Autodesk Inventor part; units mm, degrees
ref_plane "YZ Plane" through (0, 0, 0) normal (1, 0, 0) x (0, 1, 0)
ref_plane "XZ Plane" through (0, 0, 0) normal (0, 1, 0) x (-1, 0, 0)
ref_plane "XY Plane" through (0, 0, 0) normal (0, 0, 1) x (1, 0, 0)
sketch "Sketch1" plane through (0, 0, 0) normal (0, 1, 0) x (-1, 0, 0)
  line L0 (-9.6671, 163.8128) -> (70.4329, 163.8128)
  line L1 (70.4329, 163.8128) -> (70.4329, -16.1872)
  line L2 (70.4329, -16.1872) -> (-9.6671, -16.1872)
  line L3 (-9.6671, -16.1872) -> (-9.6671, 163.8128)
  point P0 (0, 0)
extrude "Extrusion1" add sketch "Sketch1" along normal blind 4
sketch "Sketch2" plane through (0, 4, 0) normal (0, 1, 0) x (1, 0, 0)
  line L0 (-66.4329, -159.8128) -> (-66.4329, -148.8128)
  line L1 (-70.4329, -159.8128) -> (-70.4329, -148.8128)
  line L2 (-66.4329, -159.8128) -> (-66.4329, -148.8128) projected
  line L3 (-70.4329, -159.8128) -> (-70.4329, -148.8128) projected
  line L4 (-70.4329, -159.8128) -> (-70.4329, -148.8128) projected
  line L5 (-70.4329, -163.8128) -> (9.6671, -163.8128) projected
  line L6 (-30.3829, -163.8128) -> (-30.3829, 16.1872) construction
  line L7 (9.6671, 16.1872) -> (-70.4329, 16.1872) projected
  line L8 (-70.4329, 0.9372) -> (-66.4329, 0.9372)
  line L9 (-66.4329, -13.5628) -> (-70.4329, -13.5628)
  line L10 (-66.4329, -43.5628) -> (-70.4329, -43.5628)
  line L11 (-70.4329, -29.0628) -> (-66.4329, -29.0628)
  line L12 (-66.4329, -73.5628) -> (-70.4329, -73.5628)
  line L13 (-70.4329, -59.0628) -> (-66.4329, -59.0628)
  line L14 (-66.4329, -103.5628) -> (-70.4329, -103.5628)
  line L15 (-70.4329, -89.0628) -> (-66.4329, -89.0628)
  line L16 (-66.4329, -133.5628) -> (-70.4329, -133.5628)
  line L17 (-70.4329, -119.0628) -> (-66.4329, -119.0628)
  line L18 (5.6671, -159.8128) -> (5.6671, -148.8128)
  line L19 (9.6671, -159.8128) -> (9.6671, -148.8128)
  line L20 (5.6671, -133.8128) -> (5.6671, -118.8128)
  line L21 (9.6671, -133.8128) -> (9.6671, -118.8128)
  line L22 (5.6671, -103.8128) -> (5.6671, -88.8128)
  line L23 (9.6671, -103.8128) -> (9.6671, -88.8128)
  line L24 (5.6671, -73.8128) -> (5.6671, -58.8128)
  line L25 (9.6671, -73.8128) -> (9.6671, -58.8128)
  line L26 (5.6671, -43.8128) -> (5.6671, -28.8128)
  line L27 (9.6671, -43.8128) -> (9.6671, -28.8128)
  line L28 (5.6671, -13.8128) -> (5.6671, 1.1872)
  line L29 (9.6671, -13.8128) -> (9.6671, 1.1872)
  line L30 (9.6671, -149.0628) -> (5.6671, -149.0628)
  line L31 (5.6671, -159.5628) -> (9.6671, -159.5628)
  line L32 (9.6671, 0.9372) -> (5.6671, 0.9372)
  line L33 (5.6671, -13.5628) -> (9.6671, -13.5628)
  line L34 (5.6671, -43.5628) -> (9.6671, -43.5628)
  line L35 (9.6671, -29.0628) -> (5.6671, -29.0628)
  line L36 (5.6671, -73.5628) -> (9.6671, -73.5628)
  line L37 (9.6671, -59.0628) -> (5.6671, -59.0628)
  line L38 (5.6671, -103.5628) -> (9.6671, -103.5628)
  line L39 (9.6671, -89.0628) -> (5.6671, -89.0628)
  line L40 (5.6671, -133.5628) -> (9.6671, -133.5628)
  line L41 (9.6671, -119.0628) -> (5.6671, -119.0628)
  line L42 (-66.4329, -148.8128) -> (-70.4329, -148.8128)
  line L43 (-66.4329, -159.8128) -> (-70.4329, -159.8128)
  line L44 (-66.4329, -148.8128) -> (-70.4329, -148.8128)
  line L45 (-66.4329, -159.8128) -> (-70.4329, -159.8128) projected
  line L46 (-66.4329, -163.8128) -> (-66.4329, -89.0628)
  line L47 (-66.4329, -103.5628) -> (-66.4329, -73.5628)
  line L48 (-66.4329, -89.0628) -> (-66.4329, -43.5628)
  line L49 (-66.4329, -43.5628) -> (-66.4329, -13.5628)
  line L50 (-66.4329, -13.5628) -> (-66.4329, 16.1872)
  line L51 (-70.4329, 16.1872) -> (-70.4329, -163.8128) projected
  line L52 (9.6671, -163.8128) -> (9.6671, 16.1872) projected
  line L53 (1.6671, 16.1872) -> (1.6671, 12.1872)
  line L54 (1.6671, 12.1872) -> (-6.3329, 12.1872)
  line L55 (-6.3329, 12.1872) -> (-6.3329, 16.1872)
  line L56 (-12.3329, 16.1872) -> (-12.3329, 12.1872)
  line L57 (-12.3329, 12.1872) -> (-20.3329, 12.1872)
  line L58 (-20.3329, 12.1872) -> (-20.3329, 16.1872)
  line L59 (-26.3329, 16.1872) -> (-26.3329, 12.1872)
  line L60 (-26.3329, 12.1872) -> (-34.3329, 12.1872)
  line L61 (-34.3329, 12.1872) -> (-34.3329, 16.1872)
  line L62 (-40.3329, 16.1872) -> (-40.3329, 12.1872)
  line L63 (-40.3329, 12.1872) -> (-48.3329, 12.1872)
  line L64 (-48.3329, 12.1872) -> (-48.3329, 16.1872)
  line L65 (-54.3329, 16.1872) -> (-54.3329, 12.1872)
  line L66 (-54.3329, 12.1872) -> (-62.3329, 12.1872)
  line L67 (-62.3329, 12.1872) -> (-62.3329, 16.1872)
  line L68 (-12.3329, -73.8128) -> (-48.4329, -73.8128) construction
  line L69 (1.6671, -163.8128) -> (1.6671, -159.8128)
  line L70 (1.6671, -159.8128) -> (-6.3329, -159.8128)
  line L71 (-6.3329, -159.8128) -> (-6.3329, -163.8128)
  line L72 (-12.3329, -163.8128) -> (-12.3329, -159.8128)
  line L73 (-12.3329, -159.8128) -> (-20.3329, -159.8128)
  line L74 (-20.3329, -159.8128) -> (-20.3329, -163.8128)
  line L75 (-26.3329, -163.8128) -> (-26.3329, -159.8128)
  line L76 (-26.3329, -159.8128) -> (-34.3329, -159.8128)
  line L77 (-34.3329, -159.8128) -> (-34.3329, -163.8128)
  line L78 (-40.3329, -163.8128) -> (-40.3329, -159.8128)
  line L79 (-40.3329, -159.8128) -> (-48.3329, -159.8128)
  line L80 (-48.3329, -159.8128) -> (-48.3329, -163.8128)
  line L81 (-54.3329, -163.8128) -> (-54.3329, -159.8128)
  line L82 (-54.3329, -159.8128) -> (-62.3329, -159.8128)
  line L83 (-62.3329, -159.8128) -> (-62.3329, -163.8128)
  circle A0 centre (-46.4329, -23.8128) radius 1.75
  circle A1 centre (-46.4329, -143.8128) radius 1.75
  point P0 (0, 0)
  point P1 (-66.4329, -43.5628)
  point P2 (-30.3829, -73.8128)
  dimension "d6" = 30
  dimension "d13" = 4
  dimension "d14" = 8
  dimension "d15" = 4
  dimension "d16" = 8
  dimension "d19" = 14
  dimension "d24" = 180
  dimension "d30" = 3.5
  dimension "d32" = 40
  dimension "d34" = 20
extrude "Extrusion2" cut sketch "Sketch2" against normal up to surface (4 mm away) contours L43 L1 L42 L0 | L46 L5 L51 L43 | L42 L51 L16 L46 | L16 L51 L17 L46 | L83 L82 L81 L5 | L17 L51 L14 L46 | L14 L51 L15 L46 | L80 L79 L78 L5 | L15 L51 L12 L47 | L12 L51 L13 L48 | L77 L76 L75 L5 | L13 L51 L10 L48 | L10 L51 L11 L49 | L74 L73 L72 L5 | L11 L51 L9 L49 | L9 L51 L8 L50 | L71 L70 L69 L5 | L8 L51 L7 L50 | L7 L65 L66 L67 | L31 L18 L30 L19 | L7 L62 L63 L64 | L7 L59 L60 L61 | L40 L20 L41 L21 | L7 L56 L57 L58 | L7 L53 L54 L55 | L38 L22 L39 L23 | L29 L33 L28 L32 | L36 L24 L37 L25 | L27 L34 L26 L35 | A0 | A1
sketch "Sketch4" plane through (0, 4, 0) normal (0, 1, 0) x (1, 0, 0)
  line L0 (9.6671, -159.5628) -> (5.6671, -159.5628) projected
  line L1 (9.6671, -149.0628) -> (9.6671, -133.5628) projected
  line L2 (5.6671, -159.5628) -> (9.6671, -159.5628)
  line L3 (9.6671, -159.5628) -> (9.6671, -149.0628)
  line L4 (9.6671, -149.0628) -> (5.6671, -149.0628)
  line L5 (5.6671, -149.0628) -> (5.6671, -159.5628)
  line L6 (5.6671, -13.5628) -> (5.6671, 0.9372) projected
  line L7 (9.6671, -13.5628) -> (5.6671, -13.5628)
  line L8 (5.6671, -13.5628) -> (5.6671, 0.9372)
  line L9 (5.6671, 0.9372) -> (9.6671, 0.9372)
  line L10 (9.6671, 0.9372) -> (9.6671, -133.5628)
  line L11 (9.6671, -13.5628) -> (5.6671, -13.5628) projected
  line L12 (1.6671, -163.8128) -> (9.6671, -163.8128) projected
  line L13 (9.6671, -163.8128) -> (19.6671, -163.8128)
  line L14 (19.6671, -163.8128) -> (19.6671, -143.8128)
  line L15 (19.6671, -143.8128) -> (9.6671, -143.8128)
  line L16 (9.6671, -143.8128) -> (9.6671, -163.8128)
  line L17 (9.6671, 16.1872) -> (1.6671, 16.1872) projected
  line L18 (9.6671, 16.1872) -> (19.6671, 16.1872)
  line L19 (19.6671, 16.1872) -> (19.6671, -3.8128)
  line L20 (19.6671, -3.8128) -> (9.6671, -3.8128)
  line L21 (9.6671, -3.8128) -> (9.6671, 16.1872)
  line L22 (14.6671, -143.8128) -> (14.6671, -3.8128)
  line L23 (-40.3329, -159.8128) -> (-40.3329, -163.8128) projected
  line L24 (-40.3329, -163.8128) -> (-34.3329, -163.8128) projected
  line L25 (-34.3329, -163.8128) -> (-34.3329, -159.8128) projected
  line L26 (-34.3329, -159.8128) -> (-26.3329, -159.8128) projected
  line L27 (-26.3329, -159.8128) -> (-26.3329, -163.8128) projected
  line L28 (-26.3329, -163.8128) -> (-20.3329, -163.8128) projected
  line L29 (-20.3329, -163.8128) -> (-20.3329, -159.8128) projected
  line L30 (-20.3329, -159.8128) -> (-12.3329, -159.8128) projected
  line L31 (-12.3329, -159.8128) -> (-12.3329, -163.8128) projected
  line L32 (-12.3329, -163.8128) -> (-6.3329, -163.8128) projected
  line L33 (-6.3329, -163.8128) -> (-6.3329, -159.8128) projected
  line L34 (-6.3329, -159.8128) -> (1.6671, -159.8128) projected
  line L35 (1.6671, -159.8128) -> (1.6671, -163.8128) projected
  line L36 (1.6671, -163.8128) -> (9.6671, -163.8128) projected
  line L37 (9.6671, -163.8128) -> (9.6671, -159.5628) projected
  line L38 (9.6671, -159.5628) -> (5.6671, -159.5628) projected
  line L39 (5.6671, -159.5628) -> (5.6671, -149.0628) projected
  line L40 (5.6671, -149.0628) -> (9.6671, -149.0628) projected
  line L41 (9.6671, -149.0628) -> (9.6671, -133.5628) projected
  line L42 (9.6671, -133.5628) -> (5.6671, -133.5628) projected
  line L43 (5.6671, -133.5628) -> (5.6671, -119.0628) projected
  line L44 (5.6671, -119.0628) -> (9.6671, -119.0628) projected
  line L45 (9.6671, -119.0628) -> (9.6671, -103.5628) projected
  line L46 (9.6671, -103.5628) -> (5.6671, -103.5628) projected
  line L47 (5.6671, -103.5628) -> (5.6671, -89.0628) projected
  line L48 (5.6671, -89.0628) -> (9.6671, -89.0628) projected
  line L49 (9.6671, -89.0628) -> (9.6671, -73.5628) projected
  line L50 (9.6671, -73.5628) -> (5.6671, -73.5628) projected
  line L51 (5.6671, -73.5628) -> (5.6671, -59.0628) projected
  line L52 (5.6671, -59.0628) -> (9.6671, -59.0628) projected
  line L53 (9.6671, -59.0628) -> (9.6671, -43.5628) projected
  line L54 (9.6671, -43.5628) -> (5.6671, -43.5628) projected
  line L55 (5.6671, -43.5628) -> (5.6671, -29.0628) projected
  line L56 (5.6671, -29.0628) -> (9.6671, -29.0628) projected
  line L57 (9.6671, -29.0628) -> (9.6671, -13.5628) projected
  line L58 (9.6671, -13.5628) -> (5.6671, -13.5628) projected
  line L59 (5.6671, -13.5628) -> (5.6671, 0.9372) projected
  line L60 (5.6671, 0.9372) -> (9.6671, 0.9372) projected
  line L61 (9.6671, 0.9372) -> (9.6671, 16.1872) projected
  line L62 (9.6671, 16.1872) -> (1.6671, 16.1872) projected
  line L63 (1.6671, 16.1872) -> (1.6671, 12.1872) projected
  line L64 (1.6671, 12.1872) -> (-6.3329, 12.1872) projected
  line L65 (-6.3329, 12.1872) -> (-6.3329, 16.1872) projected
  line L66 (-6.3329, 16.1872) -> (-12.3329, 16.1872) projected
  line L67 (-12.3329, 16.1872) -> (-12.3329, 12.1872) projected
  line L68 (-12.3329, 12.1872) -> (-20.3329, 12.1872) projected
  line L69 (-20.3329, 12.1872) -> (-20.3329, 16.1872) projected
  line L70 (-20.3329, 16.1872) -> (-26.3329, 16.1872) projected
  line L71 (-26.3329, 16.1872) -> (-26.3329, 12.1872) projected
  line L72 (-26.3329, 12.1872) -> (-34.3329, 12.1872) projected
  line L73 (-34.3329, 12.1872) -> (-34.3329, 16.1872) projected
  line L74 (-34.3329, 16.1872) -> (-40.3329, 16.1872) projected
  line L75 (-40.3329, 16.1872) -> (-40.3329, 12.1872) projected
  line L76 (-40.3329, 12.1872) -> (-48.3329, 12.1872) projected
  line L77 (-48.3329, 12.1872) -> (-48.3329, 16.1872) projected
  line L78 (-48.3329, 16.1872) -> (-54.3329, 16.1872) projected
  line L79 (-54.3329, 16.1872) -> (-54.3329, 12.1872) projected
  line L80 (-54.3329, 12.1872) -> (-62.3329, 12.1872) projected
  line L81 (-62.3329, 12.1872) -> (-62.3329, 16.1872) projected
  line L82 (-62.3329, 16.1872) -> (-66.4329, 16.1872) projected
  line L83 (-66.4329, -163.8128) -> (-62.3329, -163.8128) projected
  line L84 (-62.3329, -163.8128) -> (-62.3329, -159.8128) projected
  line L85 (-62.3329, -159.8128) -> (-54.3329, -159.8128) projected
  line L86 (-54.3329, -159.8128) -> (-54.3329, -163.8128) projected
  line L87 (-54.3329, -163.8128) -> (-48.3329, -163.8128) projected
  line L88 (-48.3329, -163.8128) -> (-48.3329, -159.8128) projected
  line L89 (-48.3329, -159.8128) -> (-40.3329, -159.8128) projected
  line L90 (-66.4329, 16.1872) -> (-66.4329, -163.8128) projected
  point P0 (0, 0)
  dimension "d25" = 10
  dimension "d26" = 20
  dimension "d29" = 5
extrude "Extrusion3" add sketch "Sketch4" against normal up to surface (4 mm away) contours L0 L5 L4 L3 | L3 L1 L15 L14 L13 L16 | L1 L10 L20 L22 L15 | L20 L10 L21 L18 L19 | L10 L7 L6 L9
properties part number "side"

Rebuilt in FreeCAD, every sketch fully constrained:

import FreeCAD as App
import Part
import Sketcher

V = App.Vector
Q = App.Units.Quantity


def add_polygon(sketch, points):
    """Adds a closed chain of lines whose ends are joined by coincident constraints."""
    first, n = sketch.GeometryCount, len(points)
    for a, b in zip(points, points[1:] + points[:1]):
        sketch.addGeometry(Part.LineSegment(App.Vector(*a, 0), App.Vector(*b, 0)), False)
    for i in range(n):
        sketch.addConstraint(Sketcher.Constraint("Coincident", first + i, 2, first + (i + 1) % n, 1))

doc = App.newDocument("Part")
body = doc.addObject("PartDesign::Body", "Body")

# Sketch on XZ plane
sketch1 = body.newObject("Sketcher::SketchObject", "Sketch")
sketch1.AttachmentSupport = (doc.getObject("XZ_Plane"), [""])
sketch1.MapMode = "FlatFace"
add_polygon(sketch1, [(-70, 164), (10, 164), (10, -16), (-70, -16)])  # lines 0-3
sketch1.addConstraint([
    Sketcher.Constraint("Horizontal", 0),
    Sketcher.Constraint("Vertical", 1),
    Sketcher.Constraint("Horizontal", 2),
    Sketcher.Constraint("Vertical", 3),
    Sketcher.Constraint("DistanceY", 1, 2, 1, 1, Q("180 mm")),
    Sketcher.Constraint("DistanceX", 0, 1, 0, 2, Q("80.1 mm")),
    Sketcher.Constraint("DistanceX", -1, 1, 0, 2, Q("9.667 mm")),
    Sketcher.Constraint("DistanceY", -1, 1, 0, 2, Q("163.8128 mm")),
])
pad1 = body.newObject("PartDesign::Pad", "Pad")
pad1.Profile = sketch1
pad1.Length = 4
pad1.Reversed = True

# Sketch on XZ plane
sketch2 = body.newObject("Sketcher::SketchObject", "Sketch001")
sketch2.AttachmentSupport = (doc.getObject("XZ_Plane"), [""])
sketch2.MapMode = "FlatFace"
sketch2.AttachmentOffset = App.Placement(V(0, 0, -4), App.Rotation())
add_polygon(sketch2, [(-70.4, 163.8), (-66.4, 163.8), (-66.4, -16.2), (-70.4, -16.2)])  # lines 0-3
add_polygon(sketch2, [(-62.3, 159.8), (-62.3, 163.8), (-54.3, 163.8), (-54.3, 159.8)])  # lines 4-7
add_polygon(sketch2, [(-48.3, 159.8), (-48.3, 163.8), (-40.3, 163.8), (-40.3, 159.8)])  # lines 8-11
add_polygon(sketch2, [(-34.3, 159.8), (-34.3, 163.8), (-26.3, 163.8), (-26.3, 159.8)])  # lines 12-15
add_polygon(sketch2, [(-20.3, 159.8), (-20.3, 163.8), (-12.3, 163.8), (-12.3, 159.8)])  # lines 16-19
add_polygon(sketch2, [(-6.3, 159.8), (-6.3, 163.8), (1.7, 163.8), (1.7, 159.8)])  # lines 20-23
add_polygon(sketch2, [(-54.3, -16.2), (-62.3, -16.2), (-62.3, -12.2), (-54.3, -12.2)])  # lines 24-27
add_polygon(sketch2, [(5.7, 159.6), (9.7, 159.6), (9.7, 149.1), (5.7, 149.1)])  # lines 28-31
add_polygon(sketch2, [(-40.3, -16.2), (-48.3, -16.2), (-48.3, -12.2), (-40.3, -12.2)])  # lines 32-35
add_polygon(sketch2, [(-26.3, -16.2), (-34.3, -16.2), (-34.3, -12.2), (-26.3, -12.2)])  # lines 36-39
add_polygon(sketch2, [(5.7, 133.6), (9.7, 133.6), (9.7, 119.1), (5.7, 119.1)])  # lines 40-43
add_polygon(sketch2, [(-12.3, -16.2), (-20.3, -16.2), (-20.3, -12.2), (-12.3, -12.2)])  # lines 44-47
add_polygon(sketch2, [(1.7, -16.2), (-6.3, -16.2), (-6.3, -12.2), (1.7, -12.2)])  # lines 48-51
add_polygon(sketch2, [(5.7, 103.6), (9.7, 103.6), (9.7, 89.1), (5.7, 89.1)])  # lines 52-55
add_polygon(sketch2, [(9.7, 13.6), (9.7, -0.9), (5.7, -0.9), (5.7, 13.6)])  # lines 56-59
add_polygon(sketch2, [(5.7, 73.6), (9.7, 73.6), (9.7, 59.1), (5.7, 59.1)])  # lines 60-63
add_polygon(sketch2, [(9.7, 43.6), (9.7, 29.1), (5.7, 29.1), (5.7, 43.6)])  # lines 64-67
sketch2.addGeometry(Part.Circle(V(-46.4, 23.8, 0), V(0, 0, 1), 1.8), False)  # 68
sketch2.addGeometry(Part.Circle(V(-46.4, 143.8, 0), V(0, 0, 1), 1.8), False)  # 69
sketch2.addConstraint([
    Sketcher.Constraint("Horizontal", 0),
    Sketcher.Constraint("Vertical", 1),
    Sketcher.Constraint("Horizontal", 2),
    Sketcher.Constraint("Vertical", 3),
    Sketcher.Constraint("Vertical", 4),
    Sketcher.Constraint("Horizontal", 5),
    Sketcher.Constraint("Vertical", 6),
    Sketcher.Constraint("Horizontal", 7),
    Sketcher.Constraint("Vertical", 8),
    Sketcher.Constraint("Horizontal", 9),
    Sketcher.Constraint("Vertical", 10),
    Sketcher.Constraint("Horizontal", 11),
    Sketcher.Constraint("Vertical", 12),
    Sketcher.Constraint("Horizontal", 13),
    Sketcher.Constraint("Vertical", 14),
    Sketcher.Constraint("Horizontal", 15),
    Sketcher.Constraint("Vertical", 16),
    Sketcher.Constraint("Horizontal", 17),
    Sketcher.Constraint("Vertical", 18),
    Sketcher.Constraint("Horizontal", 19),
    Sketcher.Constraint("Vertical", 20),
    Sketcher.Constraint("Horizontal", 21),
    Sketcher.Constraint("Vertical", 22),
    Sketcher.Constraint("Horizontal", 23),
    Sketcher.Constraint("Horizontal", 24),
    Sketcher.Constraint("Vertical", 25),
    Sketcher.Constraint("Horizontal", 26),
    Sketcher.Constraint("Vertical", 27),
    Sketcher.Constraint("Horizontal", 28),
    Sketcher.Constraint("Vertical", 29),
    Sketcher.Constraint("Horizontal", 30),
    Sketcher.Constraint("Vertical", 31),
    Sketcher.Constraint("Horizontal", 32),
    Sketcher.Constraint("Vertical", 33),
    Sketcher.Constraint("Horizontal", 34),
    Sketcher.Constraint("Vertical", 35),
    Sketcher.Constraint("Horizontal", 36),
    Sketcher.Constraint("Vertical", 37),
    Sketcher.Constraint("Horizontal", 38),
    Sketcher.Constraint("Vertical", 39),
    Sketcher.Constraint("Horizontal", 40),
    Sketcher.Constraint("Vertical", 41),
    Sketcher.Constraint("Horizontal", 42),
    Sketcher.Constraint("Vertical", 43),
    Sketcher.Constraint("Horizontal", 44),
    Sketcher.Constraint("Vertical", 45),
    Sketcher.Constraint("Horizontal", 46),
    Sketcher.Constraint("Vertical", 47),
    Sketcher.Constraint("Horizontal", 48),
    Sketcher.Constraint("Vertical", 49),
    Sketcher.Constraint("Horizontal", 50),
    Sketcher.Constraint("Vertical", 51),
    Sketcher.Constraint("Horizontal", 52),
    Sketcher.Constraint("Vertical", 53),
    Sketcher.Constraint("Horizontal", 54),
    Sketcher.Constraint("Vertical", 55),
    Sketcher.Constraint("Vertical", 56),
    Sketcher.Constraint("Horizontal", 57),
    Sketcher.Constraint("Vertical", 58),
    Sketcher.Constraint("Horizontal", 59),
    Sketcher.Constraint("Horizontal", 60),
    Sketcher.Constraint("Vertical", 61),
    Sketcher.Constraint("Horizontal", 62),
    Sketcher.Constraint("Vertical", 63),
    Sketcher.Constraint("Vertical", 64),
    Sketcher.Constraint("Horizontal", 65),
    Sketcher.Constraint("Vertical", 66),
    Sketcher.Constraint("Horizontal", 67),
    Sketcher.Constraint("Equal", 68, 69),
    Sketcher.Constraint("Horizontal", 3, 2, 4, 2),
    Sketcher.Constraint("Horizontal", 5, 2, 8, 2),
    Sketcher.Constraint("Horizontal", 7, 2, 10, 2),
    Sketcher.Constraint("Horizontal", 9, 2, 12, 2),
    Sketcher.Constraint("Horizontal", 11, 2, 14, 2),
    Sketcher.Constraint("Horizontal", 13, 2, 16, 2),
    Sketcher.Constraint("Horizontal", 15, 2, 18, 2),
    Sketcher.Constraint("Horizontal", 17, 2, 20, 2),
    Sketcher.Constraint("Horizontal", 19, 2, 22, 2),
    Sketcher.Constraint("Horizontal", 2, 2, 24, 2),
    Sketcher.Constraint("Horizontal", 27, 2, 32, 2),
    Sketcher.Constraint("Horizontal", 26, 2, 33, 2),
    Sketcher.Constraint("Horizontal", 35, 2, 36, 2),
    Sketcher.Constraint("Horizontal", 34, 2, 37, 2),
    Sketcher.Constraint("Horizontal", 39, 2, 44, 2),
    Sketcher.Constraint("Horizontal", 38, 2, 45, 2),
    Sketcher.Constraint("Horizontal", 47, 2, 48, 2),
    Sketcher.Constraint("Horizontal", 46, 2, 49, 2),
    Sketcher.Constraint("Vertical", 68, 3, 69, 3),
    Sketcher.Constraint("Vertical", 7, 2, 24, 2),
    Sketcher.Constraint("Vertical", 6, 2, 26, 2),
    Sketcher.Constraint("Vertical", 11, 2, 32, 2),
    Sketcher.Constraint("Vertical", 10, 2, 34, 2),
    Sketcher.Constraint("Vertical", 15, 2, 36, 2),
    Sketcher.Constraint("Vertical", 14, 2, 38, 2),
    Sketcher.Constraint("Vertical", 29, 2, 40, 2),
    Sketcher.Constraint("Vertical", 31, 2, 42, 2),
    Sketcher.Constraint("Vertical", 19, 2, 44, 2),
    Sketcher.Constraint("Vertical", 18, 2, 46, 2),
    Sketcher.Constraint("Vertical", 23, 2, 48, 2),
    Sketcher.Constraint("Vertical", 22, 2, 50, 2),
    Sketcher.Constraint("Vertical", 41, 2, 52, 2),
    Sketcher.Constraint("Vertical", 43, 2, 54, 2),
    Sketcher.Constraint("Vertical", 53, 2, 56, 2),
    Sketcher.Constraint("Vertical", 55, 2, 57, 2),
    Sketcher.Constraint("Vertical", 59, 2, 60, 2),
    Sketcher.Constraint("Vertical", 58, 2, 62, 2),
    Sketcher.Constraint("Vertical", 61, 2, 64, 2),
    Sketcher.Constraint("Vertical", 63, 2, 65, 2),
    Sketcher.Constraint("Equal", 7, 9),
    Sketcher.Constraint("Equal", 11, 13),
    Sketcher.Constraint("Equal", 15, 17),
    Sketcher.Constraint("Equal", 19, 21),
    Sketcher.Constraint("Equal", 2, 28),
    Sketcher.Constraint("Equal", 67, 4),
    Sketcher.Constraint("Equal", 22, 25),
    Sketcher.Constraint("Equal", 43, 53),
    Sketcher.Constraint("Equal", 55, 56),
    Sketcher.Constraint("Equal", 58, 61),
    Sketcher.Constraint("Equal", 63, 64),
    Sketcher.Constraint("Diameter", 68, Q("3.5 mm")),
    Sketcher.Constraint("DistanceX", 0, 1, 0, 2, Q("4 mm")),
    Sketcher.Constraint("DistanceX", 5, 1, 5, 2, Q("8 mm")),
    Sketcher.Constraint("DistanceY", 1, 2, 1, 1, Q("180 mm")),
    Sketcher.Constraint("DistanceY", 29, 2, 29, 1, Q("10.5 mm")),
    Sketcher.Constraint("DistanceY", 41, 2, 41, 1, Q("14.5 mm")),
    Sketcher.Constraint("DistanceX", 68, 3, -1, 1, Q("46.433 mm")),
    Sketcher.Constraint("DistanceX", 0, 2, -1, 1, Q("66.433 mm")),
    Sketcher.Constraint("DistanceX", 4, 2, -1, 1, Q("62.333 mm")),
    Sketcher.Constraint("DistanceX", 8, 2, -1, 1, Q("48.333 mm")),
    Sketcher.Constraint("DistanceX", 12, 2, -1, 1, Q("34.333 mm")),
    Sketcher.Constraint("DistanceX", 16, 2, -1, 1, Q("20.333 mm")),
    Sketcher.Constraint("DistanceX", 20, 2, -1, 1, Q("6.333 mm")),
    Sketcher.Constraint("DistanceX", -1, 1, 28, 2, Q("9.667 mm")),
    Sketcher.Constraint("DistanceY", -1, 1, 68, 3, Q("23.8128 mm")),
    Sketcher.Constraint("DistanceY", -1, 1, 69, 3, Q("143.8128 mm")),
    Sketcher.Constraint("DistanceY", -1, 1, 0, 2, Q("163.8128 mm")),
    Sketcher.Constraint("DistanceY", -1, 1, 28, 2, Q("159.5628 mm")),
    Sketcher.Constraint("DistanceY", -1, 1, 40, 2, Q("133.5628 mm")),
    Sketcher.Constraint("DistanceY", -1, 1, 52, 2, Q("103.5628 mm")),
    Sketcher.Constraint("DistanceY", 56, 2, -1, 1, Q("0.9372 mm")),
    Sketcher.Constraint("DistanceY", -1, 1, 60, 2, Q("73.5628 mm")),
    Sketcher.Constraint("DistanceY", -1, 1, 64, 2, Q("29.0628 mm")),
])
pocket1 = body.newObject("PartDesign::Pocket", "Pocket")
pocket1.Profile = sketch2
pocket1.Length = 4
pocket1.Reversed = True

# Sketch on XZ plane
sketch3 = body.newObject("Sketcher::SketchObject", "Sketch002")
sketch3.AttachmentSupport = (doc.getObject("XZ_Plane"), [""])
sketch3.MapMode = "FlatFace"
sketch3.AttachmentOffset = App.Placement(V(0, 0, -4), App.Rotation())
add_polygon(sketch3, [(5.7, 159.6), (9.7, 159.6), (9.7, 163.8), (19.7, 163.8), (19.7, 143.8), (14.7, 143.8), (14.7, 3.8), (19.7, 3.8), (19.7, -16.2), (9.7, -16.2), (9.7, -0.9), (5.7, -0.9), (5.7, 13.6), (9.7, 13.6), (9.7, 149.1), (5.7, 149.1)])  # lines 0-15
sketch3.addConstraint([
    Sketcher.Constraint("Horizontal", 0),
    Sketcher.Constraint("Vertical", 1),
    Sketcher.Constraint("Horizontal", 2),
    Sketcher.Constraint("Vertical", 3),
    Sketcher.Constraint("Horizontal", 4),
    Sketcher.Constraint("Vertical", 5),
    Sketcher.Constraint("Horizontal", 6),
    Sketcher.Constraint("Vertical", 7),
    Sketcher.Constraint("Horizontal", 8),
    Sketcher.Constraint("Vertical", 9),
    Sketcher.Constraint("Horizontal", 10),
    Sketcher.Constraint("Vertical", 11),
    Sketcher.Constraint("Horizontal", 12),
    Sketcher.Constraint("Vertical", 13),
    Sketcher.Constraint("Horizontal", 14),
    Sketcher.Constraint("Vertical", 15),
    Sketcher.Constraint("Vertical", 3, 2, 6, 2),
    Sketcher.Constraint("Vertical", 1, 2, 8, 2),
    Sketcher.Constraint("Vertical", 9, 2, 12, 2),
    Sketcher.Constraint("Vertical", 11, 2, 14, 2),
    Sketcher.Constraint("Equal", 3, 7),
    Sketcher.Constraint("DistanceX", 2, 1, 2, 2, Q("10 mm")),
    Sketcher.Constraint("DistanceX", 4, 2, 4, 1, Q("5 mm")),
    Sketcher.Constraint("DistanceY", 3, 2, 3, 1, Q("20 mm")),
    Sketcher.Constraint("DistanceX", 0, 1, 0, 2, Q("4 mm")),
    Sketcher.Constraint("DistanceY", 5, 2, 5, 1, Q("140 mm")),
    Sketcher.Constraint("DistanceY", 11, 1, 11, 2, Q("14.5 mm")),
    Sketcher.Constraint("DistanceY", 13, 1, 13, 2, Q("135.5 mm")),
    Sketcher.Constraint("DistanceY", 15, 1, 15, 2, Q("10.5 mm")),
    Sketcher.Constraint("DistanceY", 1, 1, 1, 2, Q("4.25 mm")),
    Sketcher.Constraint("DistanceX", -1, 1, 0, 2, Q("9.667 mm")),
    Sketcher.Constraint("DistanceY", -1, 1, 0, 2, Q("159.5628 mm")),
])
pad2 = body.newObject("PartDesign::Pad", "Pad001")
pad2.Profile = sketch3
pad2.Length = 4

doc.recompute()
